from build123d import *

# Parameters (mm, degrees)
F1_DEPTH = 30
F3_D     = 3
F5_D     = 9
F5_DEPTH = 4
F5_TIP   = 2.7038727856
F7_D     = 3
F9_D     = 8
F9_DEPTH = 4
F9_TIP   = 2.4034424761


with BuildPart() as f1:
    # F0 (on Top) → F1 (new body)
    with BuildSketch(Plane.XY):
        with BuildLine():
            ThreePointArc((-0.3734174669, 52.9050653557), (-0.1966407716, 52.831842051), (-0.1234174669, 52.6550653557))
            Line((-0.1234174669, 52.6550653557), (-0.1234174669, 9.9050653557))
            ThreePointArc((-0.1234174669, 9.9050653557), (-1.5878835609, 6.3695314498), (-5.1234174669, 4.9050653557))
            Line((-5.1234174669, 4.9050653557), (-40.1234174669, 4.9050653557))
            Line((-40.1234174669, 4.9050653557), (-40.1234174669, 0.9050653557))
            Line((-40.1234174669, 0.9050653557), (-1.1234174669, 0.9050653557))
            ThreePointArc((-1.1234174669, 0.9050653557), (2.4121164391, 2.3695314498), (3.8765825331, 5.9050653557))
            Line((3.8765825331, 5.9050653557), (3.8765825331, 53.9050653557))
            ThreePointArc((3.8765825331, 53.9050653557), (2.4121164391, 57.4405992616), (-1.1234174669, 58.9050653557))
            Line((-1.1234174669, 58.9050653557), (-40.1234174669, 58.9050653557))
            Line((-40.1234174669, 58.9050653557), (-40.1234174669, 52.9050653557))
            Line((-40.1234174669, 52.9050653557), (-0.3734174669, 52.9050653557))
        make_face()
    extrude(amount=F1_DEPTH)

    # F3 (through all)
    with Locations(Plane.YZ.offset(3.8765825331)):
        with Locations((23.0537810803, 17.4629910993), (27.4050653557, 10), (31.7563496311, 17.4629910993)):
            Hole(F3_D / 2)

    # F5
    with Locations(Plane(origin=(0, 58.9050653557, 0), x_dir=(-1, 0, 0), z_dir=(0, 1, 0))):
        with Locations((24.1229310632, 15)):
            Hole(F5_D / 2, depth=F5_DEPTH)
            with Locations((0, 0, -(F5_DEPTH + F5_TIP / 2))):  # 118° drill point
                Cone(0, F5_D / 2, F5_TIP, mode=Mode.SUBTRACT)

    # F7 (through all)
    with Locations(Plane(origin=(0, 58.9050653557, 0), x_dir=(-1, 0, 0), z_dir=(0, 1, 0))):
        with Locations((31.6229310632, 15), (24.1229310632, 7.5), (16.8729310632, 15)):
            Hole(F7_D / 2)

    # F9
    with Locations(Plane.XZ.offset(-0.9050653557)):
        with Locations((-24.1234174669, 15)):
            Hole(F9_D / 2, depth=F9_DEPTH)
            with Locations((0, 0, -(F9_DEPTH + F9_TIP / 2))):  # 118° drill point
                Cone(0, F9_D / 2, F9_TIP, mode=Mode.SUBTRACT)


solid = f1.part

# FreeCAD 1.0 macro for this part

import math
import FreeCAD as App
import Part
import Sketcher

V = App.Vector
Q = App.Units.Quantity

doc = App.newDocument("Part")
body = doc.addObject("PartDesign::Body", "Body")

sketch1 = doc.addObject("Sketcher::SketchObject", "Sketch")
body.addObject(sketch1)
sketch1.AttachmentSupport = (doc.XY_Plane, [""])
sketch1.MapMode = "FlatFace"
sketch1.addGeometry([
    Part.ArcOfCircle(Part.Circle(V(-0.373417, 52.655065, 0), V(0, 0, 1), 0.25), math.radians(0), math.radians(90)),
    Part.LineSegment(V(-0.123417, 52.655065, 0), V(-0.123417, 9.905065, 0)),
    Part.ArcOfCircle(Part.Circle(V(-5.123417, 9.905065, 0), V(0, 0, 1), 5), math.radians(-90), math.radians(0)),
    Part.LineSegment(V(-5.123417, 4.905065, 0), V(-40.123417, 4.905065, 0)),
    Part.LineSegment(V(-40.123417, 4.905065, 0), V(-40.123417, 0.905065, 0)),
    Part.LineSegment(V(-40.123417, 0.905065, 0), V(-1.123417, 0.905065, 0)),
    Part.ArcOfCircle(Part.Circle(V(-1.123417, 5.905065, 0), V(0, 0, 1), 5), math.radians(-90), math.radians(0)),
    Part.LineSegment(V(3.876583, 5.905065, 0), V(3.876583, 53.905065, 0)),
    Part.ArcOfCircle(Part.Circle(V(-1.123417, 53.905065, 0), V(0, 0, 1), 5), math.radians(0), math.radians(90)),
    Part.LineSegment(V(-1.123417, 58.905065, 0), V(-40.123417, 58.905065, 0)),
    Part.LineSegment(V(-40.123417, 58.905065, 0), V(-40.123417, 52.905065, 0)),
    Part.LineSegment(V(-40.123417, 52.905065, 0), V(-0.373417, 52.905065, 0)),
], False)
sketch1.addConstraint([
    Sketcher.Constraint("Tangent", 0, 1, 1, 1),
    Sketcher.Constraint("Tangent", 1, 2, 2, 2),
    Sketcher.Constraint("Tangent", 2, 1, 3, 1),
    Sketcher.Constraint("Coincident", 3, 2, 4, 1),
    Sketcher.Constraint("Coincident", 4, 2, 5, 1),
    Sketcher.Constraint("Tangent", 5, 2, 6, 1),
    Sketcher.Constraint("Tangent", 6, 2, 7, 1),
    Sketcher.Constraint("Tangent", 7, 2, 8, 1),
    Sketcher.Constraint("Tangent", 8, 2, 9, 1),
    Sketcher.Constraint("Coincident", 9, 2, 10, 1),
    Sketcher.Constraint("Coincident", 10, 2, 11, 1),
    Sketcher.Constraint("Tangent", 11, 2, 0, 2),
    Sketcher.Constraint("Vertical", 1),
    Sketcher.Constraint("Horizontal", 3),
    Sketcher.Constraint("Vertical", 4),
    Sketcher.Constraint("Horizontal", 5),
    Sketcher.Constraint("Vertical", 7),
    Sketcher.Constraint("Horizontal", 9),
    Sketcher.Constraint("Vertical", 10),
    Sketcher.Constraint("Horizontal", 11),
    Sketcher.Constraint("Equal", 2, 6),
    Sketcher.Constraint("Equal", 6, 8),
    Sketcher.Constraint("Vertical", 4, 2, 9, 2),
    Sketcher.Constraint("Radius", 2, Q("5 mm")),
    Sketcher.Constraint("DistanceX", 3, 2, 3, 1, Q("35 mm")),
    Sketcher.Constraint("DistanceX", 5, 1, 5, 2, Q("39 mm")),
    Sketcher.Constraint("DistanceY", 4, 2, 4, 1, Q("4 mm")),
    Sketcher.Constraint("DistanceY", 7, 1, 7, 2, Q("48 mm")),
    Sketcher.Constraint("DistanceY", 10, 2, 10, 1, Q("6 mm")),
    Sketcher.Constraint("Radius", 0, Q("0.25 mm")),
    Sketcher.Constraint("DistanceX", 0, 3, -1, 1, Q("0.373417 mm")),
    Sketcher.Constraint("DistanceY", -1, 1, 0, 3, Q("52.655065 mm")),
])
pad1 = doc.addObject("PartDesign::Pad", "Pad")
body.addObject(pad1)
pad1.Profile = sketch1
pad1.Length = 30

sketch2 = doc.addObject("Sketcher::SketchObject", "Sketch001")
body.addObject(sketch2)
sketch2.AttachmentSupport = (doc.YZ_Plane, [""])
sketch2.MapMode = "FlatFace"
sketch2.AttachmentOffset = App.Placement(V(0, 0, 3.876583), App.Rotation())
sketch2.addGeometry([
    Part.Circle(V(23.053781, 17.462991, 0), V(0, 0, 1), 1.5),
    Part.Circle(V(27.405065, 10, 0), V(0, 0, 1), 1.5),
    Part.Circle(V(31.75635, 17.462991, 0), V(0, 0, 1), 1.5),
], False)
sketch2.addConstraint([
    Sketcher.Constraint("Equal", 0, 1),
    Sketcher.Constraint("Equal", 1, 2),
    Sketcher.Constraint("Horizontal", 0, 3, 2, 3),
    Sketcher.Constraint("Diameter", 0, Q("3 mm")),
    Sketcher.Constraint("DistanceY", -1, 1, 1, 3, Q("10 mm")),
    Sketcher.Constraint("DistanceX", -1, 1, 0, 3, Q("23.053781 mm")),
    Sketcher.Constraint("DistanceY", -1, 1, 0, 3, Q("17.462991 mm")),
    Sketcher.Constraint("DistanceX", -1, 1, 2, 3, Q("31.75635 mm")),
    Sketcher.Constraint("DistanceX", -1, 1, 1, 3, Q("27.405065 mm")),
])
doc.recompute()
hole = doc.addObject("PartDesign::Hole", "Hole")
body.addObject(hole)
hole.Profile = sketch2
hole.ThreadType = "None"
hole.Diameter = 3
hole.DepthType = "ThroughAll"

sketch3 = doc.addObject("Sketcher::SketchObject", "Sketch002")
body.addObject(sketch3)
sketch3.AttachmentSupport = (doc.XZ_Plane, [""])
sketch3.MapMode = "FlatFace"
sketch3.AttachmentOffset = App.Placement(V(0, 0, -58.905065), App.Rotation())
sketch3.addGeometry(Part.Circle(V(-24.122931, 15, 0), V(0, 0, 1), 4.5), False)
sketch3.addConstraint([
    Sketcher.Constraint("Diameter", 0, Q("9 mm")),
    Sketcher.Constraint("DistanceY", -1, 1, 0, 3, Q("15 mm")),
    Sketcher.Constraint("DistanceX", 0, 3, -1, 1, Q("24.122931 mm")),
])
doc.recompute()
hole2 = doc.addObject("PartDesign::Hole", "Hole001")
body.addObject(hole2)
hole2.Profile = sketch3
hole2.ThreadType = "None"
hole2.Diameter = 9
hole2.DepthType = "Dimension"
hole2.Depth = 4
hole2.DrillPoint = "Angled"
hole2.DrillPointAngle = 118
hole2.Reversed = True

sketch4 = doc.addObject("Sketcher::SketchObject", "Sketch003")
body.addObject(sketch4)
sketch4.AttachmentSupport = (doc.XZ_Plane, [""])
sketch4.MapMode = "FlatFace"
sketch4.AttachmentOffset = App.Placement(V(0, 0, -58.905065), App.Rotation())
sketch4.addGeometry([
    Part.Circle(V(-31.622931, 15, 0), V(0, 0, 1), 1.5),
    Part.Circle(V(-24.122931, 7.5, 0), V(0, 0, 1), 1.5),
    Part.Circle(V(-16.872931, 15, 0), V(0, 0, 1), 1.5),
], False)
sketch4.addConstraint([
    Sketcher.Constraint("Equal", 0, 1),
    Sketcher.Constraint("Equal", 1, 2),
    Sketcher.Constraint("Horizontal", 0, 3, 2, 3),
    Sketcher.Constraint("Diameter", 0, Q("3 mm")),
    Sketcher.Constraint("DistanceY", -1, 1, 0, 3, Q("15 mm")),
    Sketcher.Constraint("DistanceY", -1, 1, 1, 3, Q("7.5 mm")),
    Sketcher.Constraint("DistanceX", 0, 3, 1, 3, Q("7.5 mm")),
    Sketcher.Constraint("DistanceX", 1, 3, 2, 3, Q("7.25 mm")),
    Sketcher.Constraint("DistanceX", 0, 3, -1, 1, Q("31.622931 mm")),
])
doc.recompute()
hole3 = doc.addObject("PartDesign::Hole", "Hole002")
body.addObject(hole3)
hole3.Profile = sketch4
hole3.ThreadType = "None"
hole3.Diameter = 3
hole3.DepthType = "ThroughAll"
hole3.Reversed = True

sketch5 = doc.addObject("Sketcher::SketchObject", "Sketch004")
body.addObject(sketch5)
sketch5.AttachmentSupport = (doc.XZ_Plane, [""])
sketch5.MapMode = "FlatFace"
sketch5.AttachmentOffset = App.Placement(V(0, 0, -0.905065), App.Rotation())
sketch5.addGeometry(Part.Circle(V(-24.123417, 15, 0), V(0, 0, 1), 4), False)
sketch5.addConstraint([
    Sketcher.Constraint("Diameter", 0, Q("8 mm")),
    Sketcher.Constraint("DistanceY", -1, 1, 0, 3, Q("15 mm")),
    Sketcher.Constraint("DistanceX", 0, 3, -1, 1, Q("24.123417 mm")),
])
doc.recompute()
hole4 = doc.addObject("PartDesign::Hole", "Hole003")
body.addObject(hole4)
hole4.Profile = sketch5
hole4.ThreadType = "None"
hole4.Diameter = 8
hole4.DepthType = "Dimension"
hole4.Depth = 4
hole4.DrillPoint = "Angled"
hole4.DrillPointAngle = 118

doc.recompute()
